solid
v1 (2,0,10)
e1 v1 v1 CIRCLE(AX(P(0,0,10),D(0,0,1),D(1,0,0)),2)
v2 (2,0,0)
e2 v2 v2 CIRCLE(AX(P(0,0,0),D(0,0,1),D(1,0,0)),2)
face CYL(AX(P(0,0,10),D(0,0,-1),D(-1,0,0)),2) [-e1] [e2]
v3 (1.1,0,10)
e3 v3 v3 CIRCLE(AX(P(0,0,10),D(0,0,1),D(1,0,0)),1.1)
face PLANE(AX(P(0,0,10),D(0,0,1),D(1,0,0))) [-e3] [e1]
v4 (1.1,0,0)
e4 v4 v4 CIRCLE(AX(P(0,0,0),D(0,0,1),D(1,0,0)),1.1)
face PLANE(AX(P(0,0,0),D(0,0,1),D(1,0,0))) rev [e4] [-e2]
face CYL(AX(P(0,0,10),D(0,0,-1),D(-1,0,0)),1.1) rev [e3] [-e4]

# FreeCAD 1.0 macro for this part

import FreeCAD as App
import Part
import Sketcher
Q = App.Units.Quantity

doc = App.newDocument("Part")
params = doc.addObject("Spreadsheet::Sheet", "Params")
for row, (alias, value) in enumerate([
    ("sketch1_diameter", "4 mm"),
    ("sketch1_diameter2", "2.2 mm"),
    ("pad1_length", "10 mm"),
], start=1):
    params.set(f"A{row}", alias)
    params.set(f"B{row}", "=" + value)
    params.setAlias(f"B{row}", alias)

body = doc.addObject("PartDesign::Body", "Body")

sketch1 = doc.addObject("Sketcher::SketchObject", "Sketch")
body.addObject(sketch1)
sketch1.AttachmentSupport = (doc.XY_Plane, [""])
sketch1.MapMode = "FlatFace"
sketch1.addGeometry(Part.Circle(App.Vector(0, 0, 0), App.Vector(0, 0, 1), 2), False)
sketch1.addGeometry(Part.Circle(App.Vector(0, 0, 0), App.Vector(0, 0, 1), 1.1), False)
sketch1.addConstraint(Sketcher.Constraint("Coincident", 0, 3, -1, 1))
sketch1.addConstraint(Sketcher.Constraint("Coincident", 1, 3, -1, 1))
sketch1.addConstraint(Sketcher.Constraint("Diameter", 0, Q("4 mm")))
sketch1.addConstraint(Sketcher.Constraint("Diameter", 1, Q("2.2 mm")))
sketch1.setExpression("Constraints[2]", "Params.sketch1_diameter")
sketch1.setExpression("Constraints[3]", "Params.sketch1_diameter2")
pad1 = doc.addObject("PartDesign::Pad", "Pad")
body.addObject(pad1)
pad1.Profile = sketch1
pad1.setExpression("Length", "Params.pad1_length")

doc.recompute()
